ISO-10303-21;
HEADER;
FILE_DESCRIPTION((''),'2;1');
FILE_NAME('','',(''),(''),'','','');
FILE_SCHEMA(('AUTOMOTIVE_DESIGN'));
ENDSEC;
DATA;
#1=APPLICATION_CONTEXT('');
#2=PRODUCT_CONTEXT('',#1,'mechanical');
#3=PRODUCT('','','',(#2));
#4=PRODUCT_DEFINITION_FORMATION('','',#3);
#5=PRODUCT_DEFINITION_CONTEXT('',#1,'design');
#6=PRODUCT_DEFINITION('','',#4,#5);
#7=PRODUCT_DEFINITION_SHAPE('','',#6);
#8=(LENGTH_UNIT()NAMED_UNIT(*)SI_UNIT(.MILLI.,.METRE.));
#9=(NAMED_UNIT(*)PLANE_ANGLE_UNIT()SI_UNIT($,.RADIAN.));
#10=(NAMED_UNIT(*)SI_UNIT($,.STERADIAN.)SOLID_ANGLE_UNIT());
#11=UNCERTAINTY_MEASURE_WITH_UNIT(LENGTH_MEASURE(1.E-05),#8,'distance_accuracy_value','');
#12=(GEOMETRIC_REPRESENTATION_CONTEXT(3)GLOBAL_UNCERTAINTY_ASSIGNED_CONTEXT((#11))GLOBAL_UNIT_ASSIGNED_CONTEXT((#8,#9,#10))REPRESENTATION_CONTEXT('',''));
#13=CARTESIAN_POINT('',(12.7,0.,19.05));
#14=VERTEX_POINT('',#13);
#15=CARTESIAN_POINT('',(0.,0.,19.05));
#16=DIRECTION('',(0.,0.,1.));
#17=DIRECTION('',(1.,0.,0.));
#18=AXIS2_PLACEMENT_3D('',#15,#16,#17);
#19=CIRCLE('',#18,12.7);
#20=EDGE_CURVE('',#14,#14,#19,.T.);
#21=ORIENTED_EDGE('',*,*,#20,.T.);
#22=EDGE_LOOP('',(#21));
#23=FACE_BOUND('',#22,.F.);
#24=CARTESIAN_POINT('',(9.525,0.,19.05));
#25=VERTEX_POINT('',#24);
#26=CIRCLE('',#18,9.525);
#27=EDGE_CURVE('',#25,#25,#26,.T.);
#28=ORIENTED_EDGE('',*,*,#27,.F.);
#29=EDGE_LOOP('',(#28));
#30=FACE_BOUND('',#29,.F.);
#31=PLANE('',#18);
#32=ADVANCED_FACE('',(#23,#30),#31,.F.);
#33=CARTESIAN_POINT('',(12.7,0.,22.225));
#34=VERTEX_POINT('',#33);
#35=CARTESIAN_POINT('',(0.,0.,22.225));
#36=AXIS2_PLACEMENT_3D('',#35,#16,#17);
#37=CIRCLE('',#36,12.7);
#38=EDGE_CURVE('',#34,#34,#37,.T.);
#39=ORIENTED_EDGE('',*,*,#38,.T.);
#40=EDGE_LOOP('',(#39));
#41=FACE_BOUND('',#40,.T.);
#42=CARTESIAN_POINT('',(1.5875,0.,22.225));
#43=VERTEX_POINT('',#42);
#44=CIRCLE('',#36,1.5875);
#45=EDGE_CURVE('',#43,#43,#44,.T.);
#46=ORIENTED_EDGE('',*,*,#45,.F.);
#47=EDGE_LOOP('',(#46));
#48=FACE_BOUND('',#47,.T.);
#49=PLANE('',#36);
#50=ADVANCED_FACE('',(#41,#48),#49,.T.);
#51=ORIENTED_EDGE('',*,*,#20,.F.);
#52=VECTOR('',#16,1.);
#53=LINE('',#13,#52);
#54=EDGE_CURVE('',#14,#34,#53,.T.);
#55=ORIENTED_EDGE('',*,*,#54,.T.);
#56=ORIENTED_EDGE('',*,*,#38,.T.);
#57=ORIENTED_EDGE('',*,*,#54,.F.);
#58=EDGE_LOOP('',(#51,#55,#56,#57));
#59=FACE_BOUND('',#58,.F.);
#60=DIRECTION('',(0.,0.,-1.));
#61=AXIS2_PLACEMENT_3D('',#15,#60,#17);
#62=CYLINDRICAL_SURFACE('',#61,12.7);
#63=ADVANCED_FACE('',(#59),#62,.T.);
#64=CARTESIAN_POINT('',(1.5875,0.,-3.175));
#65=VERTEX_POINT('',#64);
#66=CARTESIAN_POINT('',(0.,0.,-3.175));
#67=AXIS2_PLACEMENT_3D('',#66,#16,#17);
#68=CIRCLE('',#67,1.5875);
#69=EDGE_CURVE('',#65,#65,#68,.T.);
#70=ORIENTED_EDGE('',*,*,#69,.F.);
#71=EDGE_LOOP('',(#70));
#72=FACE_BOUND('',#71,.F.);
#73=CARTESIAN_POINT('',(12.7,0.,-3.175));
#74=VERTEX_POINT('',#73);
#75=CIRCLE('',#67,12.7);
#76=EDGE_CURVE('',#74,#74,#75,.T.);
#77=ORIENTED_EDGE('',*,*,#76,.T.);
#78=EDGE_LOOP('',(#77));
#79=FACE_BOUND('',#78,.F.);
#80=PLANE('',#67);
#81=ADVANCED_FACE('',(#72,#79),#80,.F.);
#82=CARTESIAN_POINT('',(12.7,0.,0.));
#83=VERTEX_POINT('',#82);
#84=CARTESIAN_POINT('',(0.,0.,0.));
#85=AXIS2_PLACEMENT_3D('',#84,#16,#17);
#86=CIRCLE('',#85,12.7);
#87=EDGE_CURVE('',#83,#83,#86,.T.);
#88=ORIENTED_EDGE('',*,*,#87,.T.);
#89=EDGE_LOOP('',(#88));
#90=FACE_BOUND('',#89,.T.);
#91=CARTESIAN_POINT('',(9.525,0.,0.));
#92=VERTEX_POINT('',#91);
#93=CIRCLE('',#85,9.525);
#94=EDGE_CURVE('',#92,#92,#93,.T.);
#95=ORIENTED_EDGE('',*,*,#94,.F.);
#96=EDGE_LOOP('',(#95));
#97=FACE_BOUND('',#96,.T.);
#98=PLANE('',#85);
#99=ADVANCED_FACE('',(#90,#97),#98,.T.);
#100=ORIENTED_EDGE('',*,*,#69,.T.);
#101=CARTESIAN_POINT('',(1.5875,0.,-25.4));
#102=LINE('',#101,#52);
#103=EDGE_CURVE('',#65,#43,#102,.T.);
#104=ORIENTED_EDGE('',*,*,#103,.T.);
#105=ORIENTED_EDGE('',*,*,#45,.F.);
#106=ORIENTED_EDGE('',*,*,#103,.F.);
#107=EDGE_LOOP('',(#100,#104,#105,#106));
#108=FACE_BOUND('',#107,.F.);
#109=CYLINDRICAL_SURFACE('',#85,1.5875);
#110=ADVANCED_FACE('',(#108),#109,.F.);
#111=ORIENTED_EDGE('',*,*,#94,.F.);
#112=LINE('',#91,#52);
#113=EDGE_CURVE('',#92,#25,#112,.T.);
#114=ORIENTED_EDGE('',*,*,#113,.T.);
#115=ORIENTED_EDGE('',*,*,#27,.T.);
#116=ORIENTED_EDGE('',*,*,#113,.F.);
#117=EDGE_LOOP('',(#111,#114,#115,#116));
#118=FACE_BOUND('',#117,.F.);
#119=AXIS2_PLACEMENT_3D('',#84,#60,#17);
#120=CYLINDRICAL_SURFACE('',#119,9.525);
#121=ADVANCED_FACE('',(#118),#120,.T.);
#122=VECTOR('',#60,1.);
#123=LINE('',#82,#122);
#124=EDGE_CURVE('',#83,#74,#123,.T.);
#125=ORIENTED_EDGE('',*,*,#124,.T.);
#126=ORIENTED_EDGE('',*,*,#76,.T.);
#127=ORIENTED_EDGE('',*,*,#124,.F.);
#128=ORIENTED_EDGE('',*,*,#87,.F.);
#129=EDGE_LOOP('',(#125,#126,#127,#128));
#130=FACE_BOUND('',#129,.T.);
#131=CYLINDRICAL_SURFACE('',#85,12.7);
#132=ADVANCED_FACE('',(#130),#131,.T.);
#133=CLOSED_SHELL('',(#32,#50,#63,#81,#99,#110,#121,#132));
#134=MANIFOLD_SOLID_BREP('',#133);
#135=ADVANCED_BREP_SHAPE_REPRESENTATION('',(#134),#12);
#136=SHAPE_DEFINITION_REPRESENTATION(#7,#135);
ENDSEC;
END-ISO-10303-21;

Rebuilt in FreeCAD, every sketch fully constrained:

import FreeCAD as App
import Part
import Sketcher

V = App.Vector
Q = App.Units.Quantity

doc = App.newDocument("Part")
body = doc.addObject("PartDesign::Body", "Body")

# Sketch on XY plane
sketch1 = doc.addObject("Sketcher::SketchObject", "Sketch")
body.addObject(sketch1)
sketch1.AttachmentSupport = (doc.XY_Plane, [""])
sketch1.MapMode = "FlatFace"
sketch1.addGeometry(Part.Circle(V(0, 0, 0), V(0, 0, 1), 10), False)
sketch1.addConstraint([
    Sketcher.Constraint("Coincident", 0, 3, -1, 1),
    Sketcher.Constraint("Diameter", 0, Q("0.75 in")),
])
pad1 = doc.addObject("PartDesign::Pad", "Pad")
body.addObject(pad1)
pad1.Profile = sketch1
pad1.Length = Q("0.75 in")

# Sketch on XY plane
sketch2 = doc.addObject("Sketcher::SketchObject", "Sketch001")
body.addObject(sketch2)
sketch2.AttachmentSupport = (doc.XY_Plane, [""])
sketch2.MapMode = "FlatFace"
sketch2.addGeometry(Part.Circle(V(0, 0, 0), V(0, 0, 1), 13), False)
sketch2.addConstraint([
    Sketcher.Constraint("Coincident", 0, 3, -1, 1),
    Sketcher.Constraint("Diameter", 0, Q("1 in")),
])
pad2 = doc.addObject("PartDesign::Pad", "Pad001")
body.addObject(pad2)
pad2.Profile = sketch2
pad2.Length = Q("0.125 in")
pad2.Reversed = True

# Sketch on XY plane
sketch3 = doc.addObject("Sketcher::SketchObject", "Sketch002")
body.addObject(sketch3)
sketch3.AttachmentSupport = (doc.XY_Plane, [""])
sketch3.MapMode = "FlatFace"
sketch3.AttachmentOffset = App.Placement(V(0, 0, 0.75 * 25.4), App.Rotation())
sketch3.addGeometry(Part.Circle(V(0, 0, 0), V(0, 0, 1), 13), False)
sketch3.addConstraint([
    Sketcher.Constraint("Coincident", 0, 3, -1, 1),
    Sketcher.Constraint("Diameter", 0, Q("1 in")),
])
pad3 = doc.addObject("PartDesign::Pad", "Pad002")
body.addObject(pad3)
pad3.Profile = sketch3
pad3.Length = Q("0.125 in")

# Sketch on XY plane
sketch4 = doc.addObject("Sketcher::SketchObject", "Sketch003")
body.addObject(sketch4)
sketch4.AttachmentSupport = (doc.XY_Plane, [""])
sketch4.MapMode = "FlatFace"
sketch4.addGeometry(Part.Circle(V(0, 0, 0), V(0, 0, 1), 1.6), False)
sketch4.addConstraint([
    Sketcher.Constraint("Coincident", 0, 3, -1, 1),
    Sketcher.Constraint("Diameter", 0, Q("0.125 in")),
])
pocket1 = doc.addObject("PartDesign::Pocket", "Pocket")
body.addObject(pocket1)
pocket1.Profile = sketch4
pocket1.Length = Q("2 in")
pocket1.Midplane = True

doc.recompute()
